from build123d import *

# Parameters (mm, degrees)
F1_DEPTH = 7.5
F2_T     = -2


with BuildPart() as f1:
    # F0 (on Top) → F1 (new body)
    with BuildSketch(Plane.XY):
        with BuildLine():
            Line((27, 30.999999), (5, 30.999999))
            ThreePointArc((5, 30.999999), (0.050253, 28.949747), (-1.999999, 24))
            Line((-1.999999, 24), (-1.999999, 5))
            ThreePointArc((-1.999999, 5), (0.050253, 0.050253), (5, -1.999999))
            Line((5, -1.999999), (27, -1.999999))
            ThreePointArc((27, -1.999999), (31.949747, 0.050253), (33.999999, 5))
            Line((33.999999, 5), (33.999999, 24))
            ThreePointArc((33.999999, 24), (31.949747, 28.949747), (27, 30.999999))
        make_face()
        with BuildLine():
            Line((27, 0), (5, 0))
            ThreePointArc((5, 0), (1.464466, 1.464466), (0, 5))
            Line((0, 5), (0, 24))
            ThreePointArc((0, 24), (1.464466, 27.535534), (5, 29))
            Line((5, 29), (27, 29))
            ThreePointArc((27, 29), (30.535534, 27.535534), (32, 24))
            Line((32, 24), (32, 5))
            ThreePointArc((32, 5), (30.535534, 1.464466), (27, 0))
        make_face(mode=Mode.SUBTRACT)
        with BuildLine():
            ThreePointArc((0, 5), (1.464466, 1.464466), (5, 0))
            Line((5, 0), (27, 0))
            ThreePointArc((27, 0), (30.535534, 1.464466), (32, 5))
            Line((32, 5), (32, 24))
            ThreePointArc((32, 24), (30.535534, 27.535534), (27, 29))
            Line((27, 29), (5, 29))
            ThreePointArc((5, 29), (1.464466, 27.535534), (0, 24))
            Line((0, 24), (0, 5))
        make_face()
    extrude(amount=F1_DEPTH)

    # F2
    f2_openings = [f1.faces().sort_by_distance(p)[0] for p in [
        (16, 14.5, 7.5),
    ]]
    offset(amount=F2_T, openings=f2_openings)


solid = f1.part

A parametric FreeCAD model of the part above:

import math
import FreeCAD as App
import Part
import Sketcher

V = App.Vector


def faces_at(feature, points):
    """Names of the faces that lie closest to the given points."""
    faces = feature.Shape.Faces
    near = lambda p: min(range(len(faces)), key=lambda i: faces[i].distToShape(Part.Vertex(*p))[0])
    return sorted({f"Face{near(p) + 1}" for p in points})

doc = App.newDocument("Part")
body = doc.addObject("PartDesign::Body", "Body")

sketch1 = body.newObject("Sketcher::SketchObject", "Sketch")
sketch1.AttachmentSupport = (doc.getObject("XY_Plane"), [""])
sketch1.MapMode = "FlatFace"
sketch1.addGeometry([
    Part.LineSegment(V(27, 31, 0), V(5, 31, 0)),
    Part.ArcOfCircle(Part.Circle(V(5, 24, 0), V(0, 0, 1), 7), math.radians(90), math.radians(180)),
    Part.LineSegment(V(-2, 24, 0), V(-2, 5, 0)),
    Part.ArcOfCircle(Part.Circle(V(5, 5, 0), V(0, 0, 1), 7), math.radians(180), math.radians(270)),
    Part.LineSegment(V(5, -2, 0), V(27, -2, 0)),
    Part.ArcOfCircle(Part.Circle(V(27, 5, 0), V(0, 0, 1), 7), math.radians(-90), math.radians(0)),
    Part.LineSegment(V(34, 5, 0), V(34, 24, 0)),
    Part.ArcOfCircle(Part.Circle(V(27, 24, 0), V(0, 0, 1), 7), math.radians(0), math.radians(90)),
], False)
sketch1.addConstraint([
    Sketcher.Constraint("Tangent", 0, 2, 1, 1),
    Sketcher.Constraint("Tangent", 1, 2, 2, 1),
    Sketcher.Constraint("Tangent", 2, 2, 3, 1),
    Sketcher.Constraint("Tangent", 3, 2, 4, 1),
    Sketcher.Constraint("Tangent", 4, 2, 5, 1),
    Sketcher.Constraint("Tangent", 5, 2, 6, 1),
    Sketcher.Constraint("Tangent", 6, 2, 7, 1),
    Sketcher.Constraint("Tangent", 7, 2, 0, 1),
    Sketcher.Constraint("Horizontal", 0),
    Sketcher.Constraint("Vertical", 2),
    Sketcher.Constraint("Horizontal", 4),
    Sketcher.Constraint("Vertical", 6),
    Sketcher.Constraint("Equal", 1, 3),
    Sketcher.Constraint("Equal", 3, 5),
    Sketcher.Constraint("Equal", 5, 7),
    Sketcher.Constraint("Radius", 1, 6.999998),
    Sketcher.Constraint("DistanceX", 0, 2, 0, 1, 22.0),
    Sketcher.Constraint("DistanceY", 2, 2, 2, 1, 19.0),
    Sketcher.Constraint("DistanceX", -1, 1, 1, 3, 4.999999),
    Sketcher.Constraint("DistanceY", -1, 1, 1, 3, 24.000001),
])
pad1 = body.newObject("PartDesign::Pad", "Pad")
pad1.Profile = sketch1
pad1.Length = 7.5
doc.recompute()

thickness = body.newObject("PartDesign::Thickness", "Thickness")
thickness.Base = (pad1, faces_at(pad1, [(16, 14.5, 7.5)]))
thickness.Value = 2
thickness.Reversed = True
thickness.Join = "Arc"

doc.recompute()
